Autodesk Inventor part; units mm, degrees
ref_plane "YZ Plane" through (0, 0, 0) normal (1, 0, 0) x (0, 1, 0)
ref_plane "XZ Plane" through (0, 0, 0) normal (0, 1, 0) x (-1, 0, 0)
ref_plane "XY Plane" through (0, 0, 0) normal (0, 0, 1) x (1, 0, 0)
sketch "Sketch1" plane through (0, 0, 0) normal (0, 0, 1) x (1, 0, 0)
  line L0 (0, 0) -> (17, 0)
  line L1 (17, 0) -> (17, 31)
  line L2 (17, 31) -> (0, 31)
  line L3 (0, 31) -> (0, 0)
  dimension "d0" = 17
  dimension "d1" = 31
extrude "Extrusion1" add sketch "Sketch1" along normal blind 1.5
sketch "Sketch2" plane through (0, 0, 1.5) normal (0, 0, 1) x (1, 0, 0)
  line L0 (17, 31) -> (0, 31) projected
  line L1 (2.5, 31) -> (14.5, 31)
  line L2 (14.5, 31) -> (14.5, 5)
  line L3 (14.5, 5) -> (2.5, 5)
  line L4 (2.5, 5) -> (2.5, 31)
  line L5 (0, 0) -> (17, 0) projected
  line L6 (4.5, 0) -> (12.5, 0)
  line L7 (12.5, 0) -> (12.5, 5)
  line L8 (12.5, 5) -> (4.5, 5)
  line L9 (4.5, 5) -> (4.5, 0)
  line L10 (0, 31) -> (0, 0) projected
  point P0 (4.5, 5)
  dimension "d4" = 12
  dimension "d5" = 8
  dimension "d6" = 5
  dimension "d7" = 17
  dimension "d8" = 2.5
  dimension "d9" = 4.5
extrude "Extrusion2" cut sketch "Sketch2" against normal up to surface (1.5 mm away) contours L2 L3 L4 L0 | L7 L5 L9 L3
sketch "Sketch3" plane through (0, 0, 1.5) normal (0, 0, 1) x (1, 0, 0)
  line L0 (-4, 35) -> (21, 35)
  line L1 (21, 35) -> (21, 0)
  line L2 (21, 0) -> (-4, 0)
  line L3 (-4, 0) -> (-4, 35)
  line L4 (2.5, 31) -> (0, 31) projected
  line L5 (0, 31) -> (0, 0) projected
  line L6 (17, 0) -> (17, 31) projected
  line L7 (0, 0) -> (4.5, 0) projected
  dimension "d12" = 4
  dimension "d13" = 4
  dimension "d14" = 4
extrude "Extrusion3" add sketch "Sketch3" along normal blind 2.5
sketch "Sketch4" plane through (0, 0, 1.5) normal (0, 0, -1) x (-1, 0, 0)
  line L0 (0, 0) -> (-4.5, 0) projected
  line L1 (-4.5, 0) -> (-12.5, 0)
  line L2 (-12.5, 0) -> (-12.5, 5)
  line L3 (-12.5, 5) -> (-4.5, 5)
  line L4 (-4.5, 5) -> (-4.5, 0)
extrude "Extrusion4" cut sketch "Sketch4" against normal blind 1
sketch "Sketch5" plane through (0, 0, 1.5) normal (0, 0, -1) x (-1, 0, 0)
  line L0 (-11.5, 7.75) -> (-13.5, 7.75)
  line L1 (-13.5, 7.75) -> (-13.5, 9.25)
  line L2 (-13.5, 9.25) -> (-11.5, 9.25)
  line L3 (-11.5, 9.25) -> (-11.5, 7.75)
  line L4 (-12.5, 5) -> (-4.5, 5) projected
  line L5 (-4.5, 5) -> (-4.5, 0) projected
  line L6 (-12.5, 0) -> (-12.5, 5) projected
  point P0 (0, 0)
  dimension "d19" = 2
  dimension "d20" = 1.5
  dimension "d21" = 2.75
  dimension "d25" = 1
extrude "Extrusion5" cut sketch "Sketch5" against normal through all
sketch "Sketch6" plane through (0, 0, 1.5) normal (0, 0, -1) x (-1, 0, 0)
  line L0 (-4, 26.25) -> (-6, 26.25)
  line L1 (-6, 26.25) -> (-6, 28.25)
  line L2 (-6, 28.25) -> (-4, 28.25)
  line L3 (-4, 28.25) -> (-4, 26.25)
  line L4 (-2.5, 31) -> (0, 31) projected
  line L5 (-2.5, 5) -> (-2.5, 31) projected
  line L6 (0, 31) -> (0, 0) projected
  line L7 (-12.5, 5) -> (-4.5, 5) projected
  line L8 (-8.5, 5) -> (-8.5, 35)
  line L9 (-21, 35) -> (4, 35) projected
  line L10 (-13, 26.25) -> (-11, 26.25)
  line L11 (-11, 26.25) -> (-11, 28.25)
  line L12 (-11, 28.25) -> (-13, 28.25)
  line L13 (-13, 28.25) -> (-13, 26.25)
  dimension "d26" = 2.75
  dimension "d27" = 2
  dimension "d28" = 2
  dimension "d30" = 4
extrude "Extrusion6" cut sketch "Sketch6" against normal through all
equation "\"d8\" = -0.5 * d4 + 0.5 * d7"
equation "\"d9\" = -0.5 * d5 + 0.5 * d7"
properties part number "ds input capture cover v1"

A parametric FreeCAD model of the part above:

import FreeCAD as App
import Part
import Sketcher
from FreeCAD import Vector
Q = App.Units.Quantity


def add_polygon(sketch, points):
    """Adds a closed chain of lines whose ends are joined by coincident constraints."""
    first, n = sketch.GeometryCount, len(points)
    for a, b in zip(points, points[1:] + points[:1]):
        sketch.addGeometry(Part.LineSegment(App.Vector(*a, 0), App.Vector(*b, 0)), False)
    for i in range(n):
        sketch.addConstraint(Sketcher.Constraint("Coincident", first + i, 2, first + (i + 1) % n, 1))

doc = App.newDocument("Part")
body = doc.addObject("PartDesign::Body", "Body")
body.AllowCompound = True

sketch1 = doc.addObject("Sketcher::SketchObject", "Sketch")
body.addObject(sketch1)
sketch1.AttachmentSupport = (doc.XY_Plane, [""])
sketch1.MapMode = "FlatFace"
add_polygon(sketch1, [(0, 31), (0, 0), (17, 0), (17, 31)])
sketch1.addConstraint([
    Sketcher.Constraint("Vertical", 0),
    Sketcher.Constraint("Horizontal", 1),
    Sketcher.Constraint("Vertical", 2),
    Sketcher.Constraint("Horizontal", 3),
    Sketcher.Constraint("Coincident", 0, 2, -1, 1),
    Sketcher.Constraint("DistanceX", 1, 1, 1, 2, Q("17 mm")),
    Sketcher.Constraint("DistanceY", 0, 2, 0, 1, Q("31 mm")),
])
pad1 = doc.addObject("PartDesign::Pad", "Pad")
body.addObject(pad1)
pad1.Profile = sketch1
pad1.Length = 1.5

sketch2 = doc.addObject("Sketcher::SketchObject", "Sketch001")
body.addObject(sketch2)
sketch2.AttachmentSupport = (doc.XY_Plane, [""])
sketch2.MapMode = "FlatFace"
sketch2.AttachmentOffset = App.Placement(Vector(0, 0, 1.5), App.Rotation())
add_polygon(sketch2, [(14.5, 5), (14.5, 31), (2.5, 31), (2.5, 5), (4.5, 5), (4.5, 0), (12.5, 0), (12.5, 5)])
sketch2.addConstraint([
    Sketcher.Constraint("Vertical", 0),
    Sketcher.Constraint("Horizontal", 1),
    Sketcher.Constraint("Vertical", 2),
    Sketcher.Constraint("Horizontal", 3),
    Sketcher.Constraint("Vertical", 4),
    Sketcher.Constraint("Horizontal", 5),
    Sketcher.Constraint("Vertical", 6),
    Sketcher.Constraint("Horizontal", 7),
    Sketcher.Constraint("PointOnObject", 4, 2, -1),
    Sketcher.Constraint("Horizontal", 3, 2, 6, 2),
    Sketcher.Constraint("Equal", 3, 7),
    Sketcher.Constraint("DistanceX", 1, 2, 1, 1, Q("12 mm")),
    Sketcher.Constraint("DistanceX", 5, 1, 5, 2, Q("8 mm")),
    Sketcher.Constraint("DistanceY", 4, 2, 4, 1, Q("5 mm")),
    Sketcher.Constraint("DistanceX", -1, 1, 1, 2, Q("2.5 mm")),
    Sketcher.Constraint("DistanceY", 0, 1, 0, 2, Q("26 mm")),
])
pocket1 = doc.addObject("PartDesign::Pocket", "Pocket")
body.addObject(pocket1)
pocket1.Profile = sketch2
pocket1.Length = 1.5

sketch3 = doc.addObject("Sketcher::SketchObject", "Sketch002")
body.addObject(sketch3)
sketch3.AttachmentSupport = (doc.XY_Plane, [""])
sketch3.MapMode = "FlatFace"
sketch3.AttachmentOffset = App.Placement(Vector(0, 0, 1.5), App.Rotation())
add_polygon(sketch3, [(21, 35), (-4, 35), (-4, 0), (21, 0)])
sketch3.addConstraint([
    Sketcher.Constraint("Horizontal", 0),
    Sketcher.Constraint("Vertical", 1),
    Sketcher.Constraint("Horizontal", 2),
    Sketcher.Constraint("Vertical", 3),
    Sketcher.Constraint("PointOnObject", 1, 2, -1),
    Sketcher.Constraint("DistanceX", 0, 2, -1, 1, Q("4 mm")),
    Sketcher.Constraint("DistanceX", 0, 2, 0, 1, Q("25 mm")),
    Sketcher.Constraint("DistanceY", 1, 2, 1, 1, Q("35 mm")),
])
pad2 = doc.addObject("PartDesign::Pad", "Pad001")
body.addObject(pad2)
pad2.Profile = sketch3
pad2.Length = 2.5

sketch4 = doc.addObject("Sketcher::SketchObject", "Sketch003")
body.addObject(sketch4)
sketch4.AttachmentSupport = (doc.XY_Plane, [""])
sketch4.MapMode = "FlatFace"
sketch4.AttachmentOffset = App.Placement(Vector(0, 0, 1.5), App.Rotation())
add_polygon(sketch4, [(12, 0), (4, 0), (4, 5), (12, 5)])
sketch4.addConstraint([
    Sketcher.Constraint("Horizontal", 0),
    Sketcher.Constraint("Vertical", 1),
    Sketcher.Constraint("Horizontal", 2),
    Sketcher.Constraint("Vertical", 3),
    Sketcher.Constraint("PointOnObject", 0, 2, -1),
    Sketcher.Constraint("DistanceX", 0, 2, 0, 1, Q("8 mm")),
    Sketcher.Constraint("DistanceY", 1, 1, 1, 2, Q("5 mm")),
    Sketcher.Constraint("DistanceX", -1, 1, 0, 2, Q("4.5 mm")),
])
pocket2 = doc.addObject("PartDesign::Pocket", "Pocket001")
body.addObject(pocket2)
pocket2.Profile = sketch4
pocket2.Length = 1
pocket2.Reversed = True

sketch5 = doc.addObject("Sketcher::SketchObject", "Sketch004")
body.addObject(sketch5)
sketch5.AttachmentSupport = (doc.XY_Plane, [""])
sketch5.MapMode = "FlatFace"
sketch5.AttachmentOffset = App.Placement(Vector(0, 0, 1.5), App.Rotation())
add_polygon(sketch5, [(13.5, 7.8), (11.5, 7.8), (11.5, 9.2), (13.5, 9.2)])
sketch5.addConstraint([
    Sketcher.Constraint("Horizontal", 0),
    Sketcher.Constraint("Vertical", 1),
    Sketcher.Constraint("Horizontal", 2),
    Sketcher.Constraint("Vertical", 3),
    Sketcher.Constraint("DistanceX", 0, 2, 0, 1, Q("2 mm")),
    Sketcher.Constraint("DistanceY", 1, 1, 1, 2, Q("1.5 mm")),
    Sketcher.Constraint("DistanceX", -1, 1, 0, 2, Q("11.5 mm")),
    Sketcher.Constraint("DistanceY", -1, 1, 0, 2, Q("7.75 mm")),
])
pocket3 = doc.addObject("PartDesign::Pocket", "Pocket002")
body.addObject(pocket3)
pocket3.Profile = sketch5
pocket3.Type = "ThroughAll"
pocket3.Reversed = True

sketch6 = doc.addObject("Sketcher::SketchObject", "Sketch005")
body.addObject(sketch6)
sketch6.AttachmentSupport = (doc.XY_Plane, [""])
sketch6.MapMode = "FlatFace"
sketch6.AttachmentOffset = App.Placement(Vector(0, 0, 1.5), App.Rotation())
add_polygon(sketch6, [(6, 26.2), (4, 26.2), (4, 28.2), (6, 28.2)])
add_polygon(sketch6, [(13, 28.2), (13, 26.2), (11, 26.2), (11, 28.2)])
sketch6.addConstraint([
    Sketcher.Constraint("Horizontal", 0),
    Sketcher.Constraint("Vertical", 1),
    Sketcher.Constraint("Horizontal", 2),
    Sketcher.Constraint("Vertical", 3),
    Sketcher.Constraint("Vertical", 4),
    Sketcher.Constraint("Horizontal", 5),
    Sketcher.Constraint("Vertical", 6),
    Sketcher.Constraint("Horizontal", 7),
    Sketcher.Constraint("Horizontal", 3, 2, 4, 2),
    Sketcher.Constraint("Horizontal", 2, 2, 6, 2),
    Sketcher.Constraint("Equal", 2, 5),
    Sketcher.Constraint("Equal", 7, 1),
    Sketcher.Constraint("DistanceX", 0, 2, 0, 1, Q("2 mm")),
    Sketcher.Constraint("DistanceX", -1, 1, 0, 2, Q("4 mm")),
    Sketcher.Constraint("DistanceX", -1, 1, 4, 2, Q("13 mm")),
    Sketcher.Constraint("DistanceY", -1, 1, 0, 2, Q("26.25 mm")),
])
pocket4 = doc.addObject("PartDesign::Pocket", "Pocket003")
body.addObject(pocket4)
pocket4.Profile = sketch6
pocket4.Type = "ThroughAll"
pocket4.Reversed = True

doc.recompute()
